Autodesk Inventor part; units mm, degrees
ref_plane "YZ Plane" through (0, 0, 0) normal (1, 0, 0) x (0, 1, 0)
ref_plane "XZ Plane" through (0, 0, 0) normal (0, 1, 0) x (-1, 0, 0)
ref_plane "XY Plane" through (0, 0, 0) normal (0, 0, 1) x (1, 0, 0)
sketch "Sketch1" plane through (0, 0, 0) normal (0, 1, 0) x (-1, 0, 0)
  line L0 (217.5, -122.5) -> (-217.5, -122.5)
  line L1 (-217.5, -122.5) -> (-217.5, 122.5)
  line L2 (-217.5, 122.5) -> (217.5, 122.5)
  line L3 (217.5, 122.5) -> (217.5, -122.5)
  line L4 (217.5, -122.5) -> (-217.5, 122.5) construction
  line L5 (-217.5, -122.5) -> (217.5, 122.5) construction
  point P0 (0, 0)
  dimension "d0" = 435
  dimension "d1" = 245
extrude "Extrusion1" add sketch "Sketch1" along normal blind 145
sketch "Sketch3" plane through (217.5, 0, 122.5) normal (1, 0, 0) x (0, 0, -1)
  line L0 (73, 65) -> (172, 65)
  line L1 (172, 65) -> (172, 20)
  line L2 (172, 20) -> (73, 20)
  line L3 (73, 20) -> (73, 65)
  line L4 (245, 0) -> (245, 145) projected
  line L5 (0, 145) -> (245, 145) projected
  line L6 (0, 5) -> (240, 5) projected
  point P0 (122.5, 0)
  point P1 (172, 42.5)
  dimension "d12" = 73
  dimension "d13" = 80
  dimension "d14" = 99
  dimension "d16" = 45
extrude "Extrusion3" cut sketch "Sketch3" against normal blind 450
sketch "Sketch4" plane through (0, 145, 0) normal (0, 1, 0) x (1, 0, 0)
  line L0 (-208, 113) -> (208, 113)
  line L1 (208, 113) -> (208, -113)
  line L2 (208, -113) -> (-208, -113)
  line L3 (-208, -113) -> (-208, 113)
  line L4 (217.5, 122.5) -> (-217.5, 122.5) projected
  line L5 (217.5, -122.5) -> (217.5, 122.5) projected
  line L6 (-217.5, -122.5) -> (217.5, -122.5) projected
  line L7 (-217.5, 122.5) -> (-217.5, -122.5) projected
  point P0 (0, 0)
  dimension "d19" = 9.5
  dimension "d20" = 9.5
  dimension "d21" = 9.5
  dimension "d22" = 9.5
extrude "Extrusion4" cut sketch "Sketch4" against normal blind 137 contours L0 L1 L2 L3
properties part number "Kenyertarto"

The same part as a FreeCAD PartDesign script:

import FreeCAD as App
import Part
import Sketcher


def add_polygon(sketch, points):
    """Adds a closed chain of lines whose ends are joined by coincident constraints."""
    first, n = sketch.GeometryCount, len(points)
    for a, b in zip(points, points[1:] + points[:1]):
        sketch.addGeometry(Part.LineSegment(App.Vector(*a, 0), App.Vector(*b, 0)), False)
    for i in range(n):
        sketch.addConstraint(Sketcher.Constraint("Coincident", first + i, 2, first + (i + 1) % n, 1))

doc = App.newDocument("Part")
body = doc.addObject("PartDesign::Body", "Body")

# Sketch on XZ plane
sketch1 = body.newObject("Sketcher::SketchObject", "Sketch")
sketch1.AttachmentSupport = (doc.getObject("XZ_Plane"), [""])
sketch1.MapMode = "FlatFace"
add_polygon(sketch1, [(218, -122), (-218, -122), (-218, 122), (218, 122)])  # lines 0-3
sketch1.addConstraint(Sketcher.Constraint("Horizontal", 0))
sketch1.addConstraint(Sketcher.Constraint("Vertical", 1))
sketch1.addConstraint(Sketcher.Constraint("Horizontal", 2))
sketch1.addConstraint(Sketcher.Constraint("Vertical", 3))
sketch1.addConstraint(Sketcher.Constraint("Symmetric", 0, 2, 2, 2, -1, 1))
sketch1.addConstraint(Sketcher.Constraint("DistanceX", 0, 2, 0, 1, 435.0))
sketch1.addConstraint(Sketcher.Constraint("DistanceY", 1, 1, 1, 2, 245.0))
pad1 = body.newObject("PartDesign::Pad", "Pad")
pad1.Profile = sketch1
pad1.Length = 145
pad1.Reversed = True

# Sketch on YZ plane
sketch2 = body.newObject("Sketcher::SketchObject", "Sketch001")
sketch2.AttachmentSupport = (doc.getObject("YZ_Plane"), [""])
sketch2.MapMode = "FlatFace"
sketch2.AttachmentOffset = App.Placement(App.Vector(0, 0, 217.5), App.Rotation())
add_polygon(sketch2, [(65, -50), (65, 50), (20, 50), (20, -50)])  # lines 0-3
sketch2.addConstraint(Sketcher.Constraint("Vertical", 0))
sketch2.addConstraint(Sketcher.Constraint("Horizontal", 1))
sketch2.addConstraint(Sketcher.Constraint("Vertical", 2))
sketch2.addConstraint(Sketcher.Constraint("Horizontal", 3))
sketch2.addConstraint(Sketcher.Constraint("DistanceX", 1, 2, 1, 1, 45.0))
sketch2.addConstraint(Sketcher.Constraint("DistanceY", 0, 1, 0, 2, 99.0))
sketch2.addConstraint(Sketcher.Constraint("DistanceX", -1, 1, 0, 2, 65.0))
sketch2.addConstraint(Sketcher.Constraint("DistanceY", -1, 1, 0, 2, 49.5))
pocket1 = body.newObject("PartDesign::Pocket", "Pocket")
pocket1.Profile = sketch2
pocket1.Length = 450

# Sketch on XZ plane
sketch3 = body.newObject("Sketcher::SketchObject", "Sketch002")
sketch3.AttachmentSupport = (doc.getObject("XZ_Plane"), [""])
sketch3.MapMode = "FlatFace"
sketch3.AttachmentOffset = App.Placement(App.Vector(0, 0, -145), App.Rotation())
add_polygon(sketch3, [(208, -113), (-208, -113), (-208, 113), (208, 113)])  # lines 0-3
sketch3.addConstraint(Sketcher.Constraint("Horizontal", 0))
sketch3.addConstraint(Sketcher.Constraint("Vertical", 1))
sketch3.addConstraint(Sketcher.Constraint("Horizontal", 2))
sketch3.addConstraint(Sketcher.Constraint("Vertical", 3))
sketch3.addConstraint(Sketcher.Constraint("Symmetric", 0, 2, 2, 2, -1, 1))
sketch3.addConstraint(Sketcher.Constraint("DistanceX", 0, 2, 0, 1, 416.0))
sketch3.addConstraint(Sketcher.Constraint("DistanceY", 1, 1, 1, 2, 226.0))
pocket2 = body.newObject("PartDesign::Pocket", "Pocket001")
pocket2.Profile = sketch3
pocket2.Length = 137
pocket2.Reversed = True

doc.recompute()
